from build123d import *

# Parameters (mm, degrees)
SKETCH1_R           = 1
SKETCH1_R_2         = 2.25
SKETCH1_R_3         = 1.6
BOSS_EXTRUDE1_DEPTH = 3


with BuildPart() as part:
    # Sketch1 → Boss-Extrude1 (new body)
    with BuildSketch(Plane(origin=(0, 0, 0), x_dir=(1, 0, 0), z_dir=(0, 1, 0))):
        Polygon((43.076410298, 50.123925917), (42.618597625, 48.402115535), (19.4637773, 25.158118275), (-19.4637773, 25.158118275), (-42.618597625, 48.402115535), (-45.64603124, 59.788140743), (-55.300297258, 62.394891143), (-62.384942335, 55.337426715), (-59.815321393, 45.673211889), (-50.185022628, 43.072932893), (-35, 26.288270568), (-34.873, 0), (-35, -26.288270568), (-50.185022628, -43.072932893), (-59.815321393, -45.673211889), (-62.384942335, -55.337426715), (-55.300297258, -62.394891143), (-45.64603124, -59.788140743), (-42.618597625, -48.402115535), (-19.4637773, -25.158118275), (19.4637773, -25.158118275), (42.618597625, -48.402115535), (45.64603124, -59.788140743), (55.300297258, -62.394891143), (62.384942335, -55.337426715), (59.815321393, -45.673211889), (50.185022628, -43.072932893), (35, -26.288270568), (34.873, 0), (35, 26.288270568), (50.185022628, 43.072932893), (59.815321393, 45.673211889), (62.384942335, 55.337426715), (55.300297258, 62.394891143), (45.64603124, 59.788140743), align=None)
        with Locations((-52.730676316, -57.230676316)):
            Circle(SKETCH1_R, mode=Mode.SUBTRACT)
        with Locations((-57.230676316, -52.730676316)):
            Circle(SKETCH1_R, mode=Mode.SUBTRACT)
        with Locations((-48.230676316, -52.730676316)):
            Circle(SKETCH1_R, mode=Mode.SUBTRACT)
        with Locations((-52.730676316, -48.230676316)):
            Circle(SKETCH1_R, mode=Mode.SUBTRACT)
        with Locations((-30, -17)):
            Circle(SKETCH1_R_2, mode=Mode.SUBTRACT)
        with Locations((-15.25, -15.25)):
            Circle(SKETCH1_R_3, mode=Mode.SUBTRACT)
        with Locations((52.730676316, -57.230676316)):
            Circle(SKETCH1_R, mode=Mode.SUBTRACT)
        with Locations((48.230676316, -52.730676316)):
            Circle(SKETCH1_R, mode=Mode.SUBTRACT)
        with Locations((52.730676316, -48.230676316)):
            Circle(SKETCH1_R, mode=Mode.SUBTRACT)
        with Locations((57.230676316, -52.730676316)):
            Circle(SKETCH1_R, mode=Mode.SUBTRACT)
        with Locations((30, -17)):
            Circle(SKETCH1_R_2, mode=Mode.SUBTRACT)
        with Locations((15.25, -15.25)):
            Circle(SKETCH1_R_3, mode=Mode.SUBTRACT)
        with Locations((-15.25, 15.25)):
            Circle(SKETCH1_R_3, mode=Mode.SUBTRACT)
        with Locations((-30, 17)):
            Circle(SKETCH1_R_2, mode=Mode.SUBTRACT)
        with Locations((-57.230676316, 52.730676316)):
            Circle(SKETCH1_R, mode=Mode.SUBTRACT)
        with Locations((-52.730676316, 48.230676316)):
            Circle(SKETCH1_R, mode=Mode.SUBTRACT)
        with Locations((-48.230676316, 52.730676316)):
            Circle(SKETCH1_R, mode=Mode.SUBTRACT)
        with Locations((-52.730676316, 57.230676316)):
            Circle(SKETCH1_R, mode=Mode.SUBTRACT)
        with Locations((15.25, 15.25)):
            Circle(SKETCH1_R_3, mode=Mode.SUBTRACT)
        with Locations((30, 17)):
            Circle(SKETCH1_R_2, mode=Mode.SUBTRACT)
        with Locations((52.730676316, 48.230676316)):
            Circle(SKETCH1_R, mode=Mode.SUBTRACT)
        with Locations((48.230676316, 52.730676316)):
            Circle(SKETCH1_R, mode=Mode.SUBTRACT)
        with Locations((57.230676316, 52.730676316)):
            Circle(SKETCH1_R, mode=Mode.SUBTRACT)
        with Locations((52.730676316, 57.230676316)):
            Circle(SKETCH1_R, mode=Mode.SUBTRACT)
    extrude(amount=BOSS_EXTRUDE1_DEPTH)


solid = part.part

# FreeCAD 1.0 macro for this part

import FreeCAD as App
import Part
import Sketcher

V = App.Vector


def add_polygon(sketch, points):
    """Adds a closed chain of lines whose ends are joined by coincident constraints."""
    first, n = sketch.GeometryCount, len(points)
    for a, b in zip(points, points[1:] + points[:1]):
        sketch.addGeometry(Part.LineSegment(App.Vector(*a, 0), App.Vector(*b, 0)), False)
    for i in range(n):
        sketch.addConstraint(Sketcher.Constraint("Coincident", first + i, 2, first + (i + 1) % n, 1))

doc = App.newDocument("Part")
body = doc.addObject("PartDesign::Body", "Body")

# Sketch on XZ plane
sketch1 = doc.addObject("Sketcher::SketchObject", "Sketch")
body.addObject(sketch1)
sketch1.AttachmentSupport = (doc.XZ_Plane, [""])
sketch1.MapMode = "FlatFace"
add_polygon(sketch1, [(43.07641, -50.123926), (42.618598, -48.402116), (19.463777, -25.158118), (-19.463777, -25.158118), (-42.618598, -48.402116), (-45.646031, -59.788141), (-55.300297, -62.394891), (-62.384942, -55.337427), (-59.815321, -45.673212), (-50.185023, -43.072933), (-35, -26.288271), (-34.873, 0), (-35, 26.288271), (-50.185023, 43.072933), (-59.815321, 45.673212), (-62.384942, 55.337427), (-55.300297, 62.394891), (-45.646031, 59.788141), (-42.618598, 48.402116), (-19.463777, 25.158118), (19.463777, 25.158118), (42.618598, 48.402116), (45.646031, 59.788141), (55.300297, 62.394891), (62.384942, 55.337427), (59.815321, 45.673212), (50.185023, 43.072933), (35, 26.288271), (34.873, 0), (35, -26.288271), (50.185023, -43.072933), (59.815321, -45.673212), (62.384942, -55.337427), (55.300297, -62.394891), (45.646031, -59.788141)])  # lines 0-34
sketch1.addGeometry(Part.Circle(V(-52.730676, 57.230676, 0), V(0, 0, 1), 1), False)  # 35
sketch1.addGeometry(Part.Circle(V(-57.230676, 52.730676, 0), V(0, 0, 1), 1), False)  # 36
sketch1.addGeometry(Part.Circle(V(-48.230676, 52.730676, 0), V(0, 0, 1), 1), False)  # 37
sketch1.addGeometry(Part.Circle(V(-52.730676, 48.230676, 0), V(0, 0, 1), 1), False)  # 38
sketch1.addGeometry(Part.Circle(V(-30, 17, 0), V(0, 0, 1), 2.25), False)  # 39
sketch1.addGeometry(Part.Circle(V(-15.25, 15.25, 0), V(0, 0, 1), 1.6), False)  # 40
sketch1.addGeometry(Part.Circle(V(48.230676, 52.730676, 0), V(0, 0, 1), 1), False)  # 41
sketch1.addGeometry(Part.Circle(V(52.730676, 57.230676, 0), V(0, 0, 1), 1), False)  # 42
sketch1.addGeometry(Part.Circle(V(57.230676, 52.730676, 0), V(0, 0, 1), 1), False)  # 43
sketch1.addGeometry(Part.Circle(V(52.730676, 48.230676, 0), V(0, 0, 1), 1), False)  # 44
sketch1.addGeometry(Part.Circle(V(15.25, 15.25, 0), V(0, 0, 1), 1.6), False)  # 45
sketch1.addGeometry(Part.Circle(V(30, 17, 0), V(0, 0, 1), 2.25), False)  # 46
sketch1.addGeometry(Part.Circle(V(-30, -17, 0), V(0, 0, 1), 2.25), False)  # 47
sketch1.addGeometry(Part.Circle(V(-15.25, -15.25, 0), V(0, 0, 1), 1.6), False)  # 48
sketch1.addGeometry(Part.Circle(V(-52.730676, -48.230676, 0), V(0, 0, 1), 1), False)  # 49
sketch1.addGeometry(Part.Circle(V(-57.230676, -52.730676, 0), V(0, 0, 1), 1), False)  # 50
sketch1.addGeometry(Part.Circle(V(-52.730676, -57.230676, 0), V(0, 0, 1), 1), False)  # 51
sketch1.addGeometry(Part.Circle(V(-48.230676, -52.730676, 0), V(0, 0, 1), 1), False)  # 52
sketch1.addGeometry(Part.Circle(V(15.25, -15.25, 0), V(0, 0, 1), 1.6), False)  # 53
sketch1.addGeometry(Part.Circle(V(30, -17, 0), V(0, 0, 1), 2.25), False)  # 54
sketch1.addGeometry(Part.Circle(V(52.730676, -48.230676, 0), V(0, 0, 1), 1), False)  # 55
sketch1.addGeometry(Part.Circle(V(48.230676, -52.730676, 0), V(0, 0, 1), 1), False)  # 56
sketch1.addGeometry(Part.Circle(V(57.230676, -52.730676, 0), V(0, 0, 1), 1), False)  # 57
sketch1.addGeometry(Part.Circle(V(52.730676, -57.230676, 0), V(0, 0, 1), 1), False)  # 58
sketch1.addConstraint([
    Sketcher.Constraint("Horizontal", 2),
    Sketcher.Constraint("Horizontal", 19),
    Sketcher.Constraint("Equal", 35, 36),
    Sketcher.Constraint("Equal", 36, 37),
    Sketcher.Constraint("Equal", 37, 38),
    Sketcher.Constraint("Equal", 38, 41),
    Sketcher.Constraint("Equal", 41, 42),
    Sketcher.Constraint("Equal", 42, 43),
    Sketcher.Constraint("Equal", 43, 44),
    Sketcher.Constraint("Equal", 40, 45),
    Sketcher.Constraint("Equal", 39, 46),
    Sketcher.Constraint("Equal", 46, 47),
    Sketcher.Constraint("Equal", 45, 48),
    Sketcher.Constraint("Equal", 44, 49),
    Sketcher.Constraint("Equal", 49, 50),
    Sketcher.Constraint("Equal", 50, 51),
    Sketcher.Constraint("Equal", 51, 52),
    Sketcher.Constraint("Equal", 48, 53),
    Sketcher.Constraint("Equal", 47, 54),
    Sketcher.Constraint("Equal", 52, 55),
    Sketcher.Constraint("Equal", 55, 56),
    Sketcher.Constraint("Equal", 56, 57),
    Sketcher.Constraint("Equal", 57, 58),
    Sketcher.Constraint("Symmetric", 46, 3, 47, 3, -1, 1),
    Sketcher.Constraint("Symmetric", 45, 3, 48, 3, -1, 1),
    Sketcher.Constraint("Symmetric", 44, 3, 49, 3, -1, 1),
    Sketcher.Constraint("Symmetric", 43, 3, 50, 3, -1, 1),
    Sketcher.Constraint("Symmetric", 42, 3, 51, 3, -1, 1),
    Sketcher.Constraint("Symmetric", 41, 3, 52, 3, -1, 1),
    Sketcher.Constraint("Symmetric", 40, 3, 53, 3, -1, 1),
    Sketcher.Constraint("Symmetric", 39, 3, 54, 3, -1, 1),
    Sketcher.Constraint("Symmetric", 38, 3, 55, 3, -1, 1),
    Sketcher.Constraint("Symmetric", 37, 3, 56, 3, -1, 1),
    Sketcher.Constraint("Symmetric", 36, 3, 57, 3, -1, 1),
    Sketcher.Constraint("Symmetric", 35, 3, 58, 3, -1, 1),
    Sketcher.Constraint("Symmetric", 0, 2, 17, 2, -1, 1),
    Sketcher.Constraint("Symmetric", 1, 2, 18, 2, -1, 1),
    Sketcher.Constraint("Symmetric", 3, 2, 20, 2, -1, 1),
    Sketcher.Constraint("Symmetric", 4, 2, 21, 2, -1, 1),
    Sketcher.Constraint("Symmetric", 5, 2, 22, 2, -1, 1),
    Sketcher.Constraint("Symmetric", 6, 2, 23, 2, -1, 1),
    Sketcher.Constraint("Symmetric", 7, 2, 24, 2, -1, 1),
    Sketcher.Constraint("Symmetric", 8, 2, 25, 2, -1, 1),
    Sketcher.Constraint("Symmetric", 9, 2, 26, 2, -1, 1),
    Sketcher.Constraint("Symmetric", 10, 2, 27, 2, -1, 1),
    Sketcher.Constraint("Symmetric", 11, 2, 28, 2, -1, 1),
    Sketcher.Constraint("Symmetric", 12, 2, 29, 2, -1, 1),
    Sketcher.Constraint("Symmetric", 13, 2, 30, 2, -1, 1),
    Sketcher.Constraint("Symmetric", 14, 2, 31, 2, -1, 1),
    Sketcher.Constraint("Symmetric", 15, 2, 32, 2, -1, 1),
    Sketcher.Constraint("Symmetric", 16, 2, 33, 2, -1, 1),
    Sketcher.Constraint("Symmetric", 37, 3, 41, 3, -2),
    Sketcher.Constraint("Symmetric", 35, 3, 42, 3, -2),
    Sketcher.Constraint("Symmetric", 36, 3, 43, 3, -2),
    Sketcher.Constraint("Symmetric", 38, 3, 44, 3, -2),
    Sketcher.Constraint("Symmetric", 40, 3, 45, 3, -2),
    Sketcher.Constraint("Symmetric", 39, 3, 46, 3, -2),
    Sketcher.Constraint("Symmetric", 0, 2, 3, 2, -2),
    Sketcher.Constraint("Symmetric", 16, 2, 21, 2, -2),
    Sketcher.Constraint("Symmetric", 15, 2, 22, 2, -2),
    Sketcher.Constraint("Symmetric", 14, 2, 23, 2, -2),
    Sketcher.Constraint("Symmetric", 13, 2, 24, 2, -2),
    Sketcher.Constraint("Symmetric", 12, 2, 25, 2, -2),
    Sketcher.Constraint("Symmetric", 11, 2, 26, 2, -2),
    Sketcher.Constraint("PointOnObject", 10, 2, -1),
    Sketcher.Constraint("Perpendicular", 3, 6),
    Sketcher.Constraint("Parallel", 4, 7),
    Sketcher.Constraint("Parallel", 5, 8),
    Sketcher.Constraint("Parallel", 0, 14),
    Sketcher.Constraint("Perpendicular", 1, 15),
    Sketcher.Constraint("Perpendicular", 6, 20),
    Sketcher.Constraint("Horizontal", 36, 3, 37, 3),
    Sketcher.Constraint("Vertical", 35, 3, 38, 3),
    Sketcher.Constraint("Equal", 5, 6),
    Sketcher.Constraint("Equal", 6, 7),
    Sketcher.Constraint("Equal", 33, 34),
    Sketcher.Constraint("Diameter", 35, 2.0),
    Sketcher.Constraint("Diameter", 39, 4.5),
    Sketcher.Constraint("Diameter", 40, 3.2),
    Sketcher.Constraint("Distance", 5, 10.0),
    Sketcher.Constraint("DistanceX", 39, 3, -1, 1, 30.0),
    Sketcher.Constraint("DistanceY", -1, 1, 39, 3, 17.0),
    Sketcher.Constraint("DistanceX", 9, 2, -1, 1, 35.0),
    Sketcher.Constraint("DistanceX", 36, 3, 37, 3, 9.0),
    Sketcher.Constraint("DistanceY", 38, 3, 35, 3, 9.0),
    Sketcher.Constraint("DistanceX", 36, 3, 35, 3, 4.5),
    Sketcher.Constraint("DistanceY", 36, 3, 35, 3, 4.5),
    Sketcher.Constraint("DistanceX", 40, 3, 45, 3, 30.5),
    Sketcher.Constraint("DistanceY", 48, 3, 40, 3, 30.5),
    Sketcher.Constraint("DistanceX", 10, 2, -1, 1, 34.873),
    Sketcher.Constraint("DistanceX", 1, 2, 56, 3, 28.766899),
    Sketcher.Constraint("DistanceX", 7, 2, 8, 2, 9.630299),
    Sketcher.Constraint("Distance", 1, 32.808979),
    Sketcher.Constraint("Distance", 9, 22.634262),
    Sketcher.Constraint("DistanceX", 2, 2, 2, 1, 38.927555),
    Sketcher.Constraint("DistanceY", 1, 2, -1, 1, 25.158118),
    Sketcher.Constraint("DistanceX", 4, 2, -1, 1, 45.646031),
    Sketcher.Constraint("DistanceY", 4, 2, -1, 1, 59.788141),
    Sketcher.Constraint("DistanceY", 5, 2, -1, 1, 62.394891),
    Sketcher.Constraint("DistanceX", 7, 2, -1, 1, 59.815321),
    Sketcher.Constraint("DistanceY", 56, 3, 0, 2, 4.328561),
])
pad1 = doc.addObject("PartDesign::Pad", "Pad")
body.addObject(pad1)
pad1.Profile = sketch1
pad1.Length = 3
pad1.Reversed = True

doc.recompute()
